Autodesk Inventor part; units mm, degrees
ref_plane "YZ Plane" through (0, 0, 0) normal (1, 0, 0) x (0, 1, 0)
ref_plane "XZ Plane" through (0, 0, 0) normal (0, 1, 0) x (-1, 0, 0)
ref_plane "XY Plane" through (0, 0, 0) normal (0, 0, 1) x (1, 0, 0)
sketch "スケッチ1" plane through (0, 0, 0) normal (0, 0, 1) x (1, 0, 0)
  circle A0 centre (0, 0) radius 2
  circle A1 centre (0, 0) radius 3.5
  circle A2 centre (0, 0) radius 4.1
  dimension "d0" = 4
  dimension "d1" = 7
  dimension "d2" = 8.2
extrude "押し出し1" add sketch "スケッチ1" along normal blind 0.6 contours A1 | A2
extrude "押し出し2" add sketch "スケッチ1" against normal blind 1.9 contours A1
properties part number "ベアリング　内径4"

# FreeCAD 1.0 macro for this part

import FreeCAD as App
import Part
import Sketcher

V = App.Vector
Q = App.Units.Quantity

doc = App.newDocument("Part")
body = doc.addObject("PartDesign::Body", "Body")

# Sketch on XY plane
sketch1 = body.newObject("Sketcher::SketchObject", "Sketch")
sketch1.AttachmentSupport = (doc.getObject("XY_Plane"), [""])
sketch1.MapMode = "FlatFace"
sketch1.addGeometry(Part.Circle(V(0, 0, 0), V(0, 0, 1), 4.1), False)
sketch1.addGeometry(Part.Circle(V(0, 0, 0), V(0, 0, 1), 2), False)
sketch1.addConstraint(Sketcher.Constraint("Coincident", 0, 3, -1, 1))
sketch1.addConstraint(Sketcher.Constraint("Coincident", 1, 3, -1, 1))
sketch1.addConstraint(Sketcher.Constraint("Diameter", 1, Q("4 mm")))
sketch1.addConstraint(Sketcher.Constraint("Diameter", 0, Q("8.2 mm")))
pad1 = body.newObject("PartDesign::Pad", "Pad")
pad1.Profile = sketch1
pad1.Length = 0.6

# Sketch on XY plane
sketch2 = body.newObject("Sketcher::SketchObject", "Sketch001")
sketch2.AttachmentSupport = (doc.getObject("XY_Plane"), [""])
sketch2.MapMode = "FlatFace"
sketch2.addGeometry(Part.Circle(V(0, 0, 0), V(0, 0, 1), 3.5), False)
sketch2.addGeometry(Part.Circle(V(0, 0, 0), V(0, 0, 1), 2), False)
sketch2.addConstraint(Sketcher.Constraint("Coincident", 0, 3, -1, 1))
sketch2.addConstraint(Sketcher.Constraint("Coincident", 1, 3, -1, 1))
sketch2.addConstraint(Sketcher.Constraint("Diameter", 0, Q("7 mm")))
sketch2.addConstraint(Sketcher.Constraint("Diameter", 1, Q("4 mm")))
pad2 = body.newObject("PartDesign::Pad", "Pad001")
pad2.Profile = sketch2
pad2.Length = 1.9
pad2.Reversed = True

doc.recompute()
